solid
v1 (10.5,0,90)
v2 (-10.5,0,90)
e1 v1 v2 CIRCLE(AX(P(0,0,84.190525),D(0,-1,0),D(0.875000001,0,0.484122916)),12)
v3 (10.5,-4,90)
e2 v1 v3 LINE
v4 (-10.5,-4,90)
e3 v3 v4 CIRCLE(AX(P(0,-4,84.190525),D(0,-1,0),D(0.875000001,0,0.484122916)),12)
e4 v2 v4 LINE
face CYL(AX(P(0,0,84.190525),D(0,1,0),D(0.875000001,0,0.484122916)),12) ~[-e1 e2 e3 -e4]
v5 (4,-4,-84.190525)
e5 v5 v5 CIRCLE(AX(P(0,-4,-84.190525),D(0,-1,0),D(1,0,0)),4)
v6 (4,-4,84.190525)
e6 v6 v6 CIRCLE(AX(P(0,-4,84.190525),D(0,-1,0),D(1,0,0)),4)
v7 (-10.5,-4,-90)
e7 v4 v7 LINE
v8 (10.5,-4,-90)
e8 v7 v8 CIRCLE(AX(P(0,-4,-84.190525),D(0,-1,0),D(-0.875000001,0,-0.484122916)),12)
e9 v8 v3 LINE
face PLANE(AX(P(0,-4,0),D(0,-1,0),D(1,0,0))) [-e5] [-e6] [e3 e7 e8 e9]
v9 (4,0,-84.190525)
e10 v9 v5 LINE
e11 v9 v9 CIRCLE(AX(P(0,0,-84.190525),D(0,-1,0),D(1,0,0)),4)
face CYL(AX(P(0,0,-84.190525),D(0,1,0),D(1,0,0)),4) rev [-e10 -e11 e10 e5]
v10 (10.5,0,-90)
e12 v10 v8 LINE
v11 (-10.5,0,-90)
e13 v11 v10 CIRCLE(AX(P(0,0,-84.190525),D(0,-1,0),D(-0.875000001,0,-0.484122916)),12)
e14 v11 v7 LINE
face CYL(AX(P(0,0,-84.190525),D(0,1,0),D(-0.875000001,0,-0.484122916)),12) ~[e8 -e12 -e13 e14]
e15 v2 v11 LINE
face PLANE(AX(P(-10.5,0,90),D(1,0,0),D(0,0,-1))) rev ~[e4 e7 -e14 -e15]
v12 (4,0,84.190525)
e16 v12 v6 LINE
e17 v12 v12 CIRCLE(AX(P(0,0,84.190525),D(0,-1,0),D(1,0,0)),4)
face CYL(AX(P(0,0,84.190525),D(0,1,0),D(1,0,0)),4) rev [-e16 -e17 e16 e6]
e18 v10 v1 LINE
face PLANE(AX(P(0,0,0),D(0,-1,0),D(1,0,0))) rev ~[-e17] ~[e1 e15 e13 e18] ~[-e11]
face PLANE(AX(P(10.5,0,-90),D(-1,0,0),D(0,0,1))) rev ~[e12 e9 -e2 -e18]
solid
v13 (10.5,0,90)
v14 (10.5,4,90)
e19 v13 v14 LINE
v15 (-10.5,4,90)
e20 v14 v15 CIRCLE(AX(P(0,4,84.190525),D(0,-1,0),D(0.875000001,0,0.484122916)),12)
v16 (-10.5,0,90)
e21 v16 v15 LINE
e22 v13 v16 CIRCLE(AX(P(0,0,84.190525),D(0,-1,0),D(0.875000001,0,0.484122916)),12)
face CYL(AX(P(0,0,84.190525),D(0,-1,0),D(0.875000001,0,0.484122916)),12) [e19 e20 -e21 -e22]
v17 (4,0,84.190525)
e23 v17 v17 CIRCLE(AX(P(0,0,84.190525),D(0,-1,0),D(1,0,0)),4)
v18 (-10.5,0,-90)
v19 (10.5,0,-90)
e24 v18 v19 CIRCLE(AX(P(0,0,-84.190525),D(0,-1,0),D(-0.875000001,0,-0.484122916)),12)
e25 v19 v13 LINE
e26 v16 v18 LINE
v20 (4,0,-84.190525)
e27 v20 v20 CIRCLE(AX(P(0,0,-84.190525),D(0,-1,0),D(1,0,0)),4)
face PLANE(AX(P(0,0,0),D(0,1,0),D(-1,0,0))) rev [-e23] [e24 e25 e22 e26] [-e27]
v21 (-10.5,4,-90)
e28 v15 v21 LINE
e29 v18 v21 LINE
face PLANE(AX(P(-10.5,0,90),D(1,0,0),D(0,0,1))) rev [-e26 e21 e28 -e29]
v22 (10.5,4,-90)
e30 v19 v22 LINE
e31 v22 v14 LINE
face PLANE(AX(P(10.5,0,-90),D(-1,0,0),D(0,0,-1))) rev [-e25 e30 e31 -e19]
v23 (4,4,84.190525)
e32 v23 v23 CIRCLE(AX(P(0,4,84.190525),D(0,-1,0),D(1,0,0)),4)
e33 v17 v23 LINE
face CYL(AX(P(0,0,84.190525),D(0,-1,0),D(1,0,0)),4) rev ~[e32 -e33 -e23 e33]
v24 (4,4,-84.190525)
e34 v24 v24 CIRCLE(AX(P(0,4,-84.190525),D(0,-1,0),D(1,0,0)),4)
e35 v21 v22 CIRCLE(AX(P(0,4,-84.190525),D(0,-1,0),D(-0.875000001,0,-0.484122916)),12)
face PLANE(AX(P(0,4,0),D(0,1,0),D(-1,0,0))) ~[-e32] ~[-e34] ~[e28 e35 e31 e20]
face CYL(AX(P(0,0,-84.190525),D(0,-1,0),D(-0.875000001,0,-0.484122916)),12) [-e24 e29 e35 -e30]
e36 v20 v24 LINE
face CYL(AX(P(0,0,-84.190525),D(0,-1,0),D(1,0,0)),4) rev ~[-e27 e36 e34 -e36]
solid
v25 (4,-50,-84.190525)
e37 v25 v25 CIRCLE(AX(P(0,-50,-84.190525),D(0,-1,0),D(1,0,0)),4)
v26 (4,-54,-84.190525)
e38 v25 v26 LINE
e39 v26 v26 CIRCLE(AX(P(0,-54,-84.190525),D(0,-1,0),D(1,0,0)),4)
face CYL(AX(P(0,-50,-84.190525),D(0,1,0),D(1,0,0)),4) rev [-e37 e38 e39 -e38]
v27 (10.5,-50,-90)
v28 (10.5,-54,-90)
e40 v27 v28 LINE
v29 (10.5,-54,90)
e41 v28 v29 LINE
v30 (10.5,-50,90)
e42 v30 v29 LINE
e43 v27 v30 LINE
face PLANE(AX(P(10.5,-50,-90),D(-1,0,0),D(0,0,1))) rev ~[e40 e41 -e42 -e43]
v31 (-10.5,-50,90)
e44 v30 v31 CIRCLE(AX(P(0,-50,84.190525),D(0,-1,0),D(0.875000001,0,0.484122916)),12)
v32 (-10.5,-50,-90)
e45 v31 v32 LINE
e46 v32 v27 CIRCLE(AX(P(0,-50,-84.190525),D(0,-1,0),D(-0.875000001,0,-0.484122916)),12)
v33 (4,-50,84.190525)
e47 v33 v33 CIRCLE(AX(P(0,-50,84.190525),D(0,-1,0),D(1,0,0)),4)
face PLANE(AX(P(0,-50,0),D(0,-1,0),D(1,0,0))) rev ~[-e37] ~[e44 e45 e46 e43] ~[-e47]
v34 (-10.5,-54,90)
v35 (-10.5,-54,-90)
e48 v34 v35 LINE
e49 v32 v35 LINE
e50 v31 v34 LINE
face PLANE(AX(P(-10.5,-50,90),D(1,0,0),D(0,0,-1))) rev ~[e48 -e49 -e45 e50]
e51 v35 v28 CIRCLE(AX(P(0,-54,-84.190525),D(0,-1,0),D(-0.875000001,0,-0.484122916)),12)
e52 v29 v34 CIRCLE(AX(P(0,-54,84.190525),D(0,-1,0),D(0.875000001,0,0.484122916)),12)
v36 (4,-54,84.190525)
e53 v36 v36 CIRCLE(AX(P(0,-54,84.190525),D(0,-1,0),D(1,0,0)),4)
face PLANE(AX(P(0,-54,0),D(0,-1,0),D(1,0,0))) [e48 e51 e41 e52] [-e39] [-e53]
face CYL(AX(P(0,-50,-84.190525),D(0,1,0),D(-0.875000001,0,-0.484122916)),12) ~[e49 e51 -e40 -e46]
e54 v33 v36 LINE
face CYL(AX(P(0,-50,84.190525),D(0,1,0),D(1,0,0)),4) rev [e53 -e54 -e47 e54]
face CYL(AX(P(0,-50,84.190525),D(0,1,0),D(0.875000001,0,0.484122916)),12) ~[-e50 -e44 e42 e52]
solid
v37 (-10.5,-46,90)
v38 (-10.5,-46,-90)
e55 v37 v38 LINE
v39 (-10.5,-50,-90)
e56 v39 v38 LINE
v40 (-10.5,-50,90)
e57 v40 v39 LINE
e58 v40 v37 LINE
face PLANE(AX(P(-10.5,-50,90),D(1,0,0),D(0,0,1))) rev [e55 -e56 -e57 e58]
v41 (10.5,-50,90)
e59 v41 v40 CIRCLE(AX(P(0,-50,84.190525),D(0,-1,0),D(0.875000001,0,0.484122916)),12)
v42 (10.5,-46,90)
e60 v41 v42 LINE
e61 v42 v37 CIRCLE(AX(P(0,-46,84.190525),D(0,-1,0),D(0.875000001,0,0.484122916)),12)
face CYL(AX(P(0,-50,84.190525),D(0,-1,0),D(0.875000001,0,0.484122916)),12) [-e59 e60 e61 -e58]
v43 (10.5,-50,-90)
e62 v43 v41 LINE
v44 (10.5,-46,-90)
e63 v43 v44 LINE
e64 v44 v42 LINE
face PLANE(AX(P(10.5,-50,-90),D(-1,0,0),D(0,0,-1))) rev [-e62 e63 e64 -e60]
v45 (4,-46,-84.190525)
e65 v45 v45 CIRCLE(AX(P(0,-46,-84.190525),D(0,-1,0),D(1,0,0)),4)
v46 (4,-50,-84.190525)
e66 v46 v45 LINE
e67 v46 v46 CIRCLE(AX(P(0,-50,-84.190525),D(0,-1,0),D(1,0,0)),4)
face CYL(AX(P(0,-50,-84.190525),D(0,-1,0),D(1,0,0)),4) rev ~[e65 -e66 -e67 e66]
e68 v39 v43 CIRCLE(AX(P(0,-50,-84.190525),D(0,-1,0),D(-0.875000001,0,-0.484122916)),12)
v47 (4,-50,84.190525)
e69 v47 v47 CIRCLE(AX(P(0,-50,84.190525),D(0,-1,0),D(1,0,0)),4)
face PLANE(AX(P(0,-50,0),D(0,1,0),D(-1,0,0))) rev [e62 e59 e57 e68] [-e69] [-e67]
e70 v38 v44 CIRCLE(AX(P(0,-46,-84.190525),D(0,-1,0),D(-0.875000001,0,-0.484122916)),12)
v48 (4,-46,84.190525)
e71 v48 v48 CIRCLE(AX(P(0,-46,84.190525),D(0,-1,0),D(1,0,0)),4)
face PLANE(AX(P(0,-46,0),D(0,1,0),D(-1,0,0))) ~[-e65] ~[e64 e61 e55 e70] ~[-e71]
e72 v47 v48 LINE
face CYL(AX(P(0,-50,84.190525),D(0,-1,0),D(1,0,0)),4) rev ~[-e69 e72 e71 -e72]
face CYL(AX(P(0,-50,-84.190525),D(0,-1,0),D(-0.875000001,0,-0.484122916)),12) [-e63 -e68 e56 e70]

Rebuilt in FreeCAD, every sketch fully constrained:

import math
import FreeCAD as App
import Part
import Sketcher

V = App.Vector

doc = App.newDocument("Part")
body = doc.addObject("PartDesign::Body", "Body")

sketch1 = body.newObject("Sketcher::SketchObject", "Sketch")
sketch1.AttachmentSupport = (doc.getObject("XZ_Plane"), [""])
sketch1.MapMode = "FlatFace"
sketch1.addGeometry(Part.ArcOfCircle(Part.Circle(V(0, 84.2, 0), V(0, 0, 1), 12), math.radians(29), math.radians(151)), False)
sketch1.addGeometry(Part.LineSegment(V(-10.5, 90, 0), V(-10.5, -90, 0)), False)
sketch1.addGeometry(Part.ArcOfCircle(Part.Circle(V(0, -84.2, 0), V(0, 0, 1), 12), math.radians(-151), math.radians(-29)), False)
sketch1.addGeometry(Part.LineSegment(V(10.5, -90, 0), V(10.5, 90, 0)), False)
sketch1.addGeometry(Part.Circle(V(0, -84.2, 0), V(0, 0, 1), 4), False)
sketch1.addGeometry(Part.Circle(V(0, 84.2, 0), V(0, 0, 1), 4), False)
sketch1.addConstraint(Sketcher.Constraint("Coincident", 0, 2, 1, 1))
sketch1.addConstraint(Sketcher.Constraint("Coincident", 1, 2, 2, 1))
sketch1.addConstraint(Sketcher.Constraint("Coincident", 2, 2, 3, 1))
sketch1.addConstraint(Sketcher.Constraint("Coincident", 3, 2, 0, 1))
sketch1.addConstraint(Sketcher.Constraint("Vertical", 1))
sketch1.addConstraint(Sketcher.Constraint("Vertical", 3))
sketch1.addConstraint(Sketcher.Constraint("Coincident", 4, 3, 2, 3))
sketch1.addConstraint(Sketcher.Constraint("Coincident", 5, 3, 0, 3))
sketch1.addConstraint(Sketcher.Constraint("Equal", 0, 2))
sketch1.addConstraint(Sketcher.Constraint("Equal", 4, 5))
sketch1.addConstraint(Sketcher.Constraint("Symmetric", 0, 3, 2, 3, -1, 1))
sketch1.addConstraint(Sketcher.Constraint("Symmetric", 1, 2, 2, 2, -2))
sketch1.addConstraint(Sketcher.Constraint("Diameter", 4, 8.0))
sketch1.addConstraint(Sketcher.Constraint("Radius", 0, 12.0))
sketch1.addConstraint(Sketcher.Constraint("DistanceY", 1, 2, 1, 1, 180.0))
sketch1.addConstraint(Sketcher.Constraint("DistanceX", 1, 2, 2, 2, 21.0))
pad1 = body.newObject("PartDesign::Pad", "Pad")
pad1.Profile = sketch1
pad1.Length = 4
body2 = doc.addObject("PartDesign::Body", "Body001")
doc.recompute()

mirroring = doc.addObject("Part::Mirroring", "Mirroring")
mirroring.Source = body
mirroring.Base = V(0, 0, 0)
mirroring.Normal = V(0, -1, 0)
body2.BaseFeature = mirroring
doc.recompute()
body3 = doc.addObject("PartDesign::Body", "Body002")
doc.recompute()

mirroring2 = doc.addObject("Part::Mirroring", "Mirroring001")
mirroring2.Source = body2
mirroring2.Base = V(0, -25, 0)
mirroring2.Normal = V(0, -1, 0)
body3.BaseFeature = mirroring2
doc.recompute()
body4 = doc.addObject("PartDesign::Body", "Body003")
doc.recompute()

mirroring3 = doc.addObject("Part::Mirroring", "Mirroring002")
mirroring3.Source = body
mirroring3.Base = V(0, -25, 0)
mirroring3.Normal = V(0, -1, 0)
body4.BaseFeature = mirroring3
doc.recompute()
mirroring.Visibility = False
mirroring2.Visibility = False
mirroring3.Visibility = False

doc.recompute()
